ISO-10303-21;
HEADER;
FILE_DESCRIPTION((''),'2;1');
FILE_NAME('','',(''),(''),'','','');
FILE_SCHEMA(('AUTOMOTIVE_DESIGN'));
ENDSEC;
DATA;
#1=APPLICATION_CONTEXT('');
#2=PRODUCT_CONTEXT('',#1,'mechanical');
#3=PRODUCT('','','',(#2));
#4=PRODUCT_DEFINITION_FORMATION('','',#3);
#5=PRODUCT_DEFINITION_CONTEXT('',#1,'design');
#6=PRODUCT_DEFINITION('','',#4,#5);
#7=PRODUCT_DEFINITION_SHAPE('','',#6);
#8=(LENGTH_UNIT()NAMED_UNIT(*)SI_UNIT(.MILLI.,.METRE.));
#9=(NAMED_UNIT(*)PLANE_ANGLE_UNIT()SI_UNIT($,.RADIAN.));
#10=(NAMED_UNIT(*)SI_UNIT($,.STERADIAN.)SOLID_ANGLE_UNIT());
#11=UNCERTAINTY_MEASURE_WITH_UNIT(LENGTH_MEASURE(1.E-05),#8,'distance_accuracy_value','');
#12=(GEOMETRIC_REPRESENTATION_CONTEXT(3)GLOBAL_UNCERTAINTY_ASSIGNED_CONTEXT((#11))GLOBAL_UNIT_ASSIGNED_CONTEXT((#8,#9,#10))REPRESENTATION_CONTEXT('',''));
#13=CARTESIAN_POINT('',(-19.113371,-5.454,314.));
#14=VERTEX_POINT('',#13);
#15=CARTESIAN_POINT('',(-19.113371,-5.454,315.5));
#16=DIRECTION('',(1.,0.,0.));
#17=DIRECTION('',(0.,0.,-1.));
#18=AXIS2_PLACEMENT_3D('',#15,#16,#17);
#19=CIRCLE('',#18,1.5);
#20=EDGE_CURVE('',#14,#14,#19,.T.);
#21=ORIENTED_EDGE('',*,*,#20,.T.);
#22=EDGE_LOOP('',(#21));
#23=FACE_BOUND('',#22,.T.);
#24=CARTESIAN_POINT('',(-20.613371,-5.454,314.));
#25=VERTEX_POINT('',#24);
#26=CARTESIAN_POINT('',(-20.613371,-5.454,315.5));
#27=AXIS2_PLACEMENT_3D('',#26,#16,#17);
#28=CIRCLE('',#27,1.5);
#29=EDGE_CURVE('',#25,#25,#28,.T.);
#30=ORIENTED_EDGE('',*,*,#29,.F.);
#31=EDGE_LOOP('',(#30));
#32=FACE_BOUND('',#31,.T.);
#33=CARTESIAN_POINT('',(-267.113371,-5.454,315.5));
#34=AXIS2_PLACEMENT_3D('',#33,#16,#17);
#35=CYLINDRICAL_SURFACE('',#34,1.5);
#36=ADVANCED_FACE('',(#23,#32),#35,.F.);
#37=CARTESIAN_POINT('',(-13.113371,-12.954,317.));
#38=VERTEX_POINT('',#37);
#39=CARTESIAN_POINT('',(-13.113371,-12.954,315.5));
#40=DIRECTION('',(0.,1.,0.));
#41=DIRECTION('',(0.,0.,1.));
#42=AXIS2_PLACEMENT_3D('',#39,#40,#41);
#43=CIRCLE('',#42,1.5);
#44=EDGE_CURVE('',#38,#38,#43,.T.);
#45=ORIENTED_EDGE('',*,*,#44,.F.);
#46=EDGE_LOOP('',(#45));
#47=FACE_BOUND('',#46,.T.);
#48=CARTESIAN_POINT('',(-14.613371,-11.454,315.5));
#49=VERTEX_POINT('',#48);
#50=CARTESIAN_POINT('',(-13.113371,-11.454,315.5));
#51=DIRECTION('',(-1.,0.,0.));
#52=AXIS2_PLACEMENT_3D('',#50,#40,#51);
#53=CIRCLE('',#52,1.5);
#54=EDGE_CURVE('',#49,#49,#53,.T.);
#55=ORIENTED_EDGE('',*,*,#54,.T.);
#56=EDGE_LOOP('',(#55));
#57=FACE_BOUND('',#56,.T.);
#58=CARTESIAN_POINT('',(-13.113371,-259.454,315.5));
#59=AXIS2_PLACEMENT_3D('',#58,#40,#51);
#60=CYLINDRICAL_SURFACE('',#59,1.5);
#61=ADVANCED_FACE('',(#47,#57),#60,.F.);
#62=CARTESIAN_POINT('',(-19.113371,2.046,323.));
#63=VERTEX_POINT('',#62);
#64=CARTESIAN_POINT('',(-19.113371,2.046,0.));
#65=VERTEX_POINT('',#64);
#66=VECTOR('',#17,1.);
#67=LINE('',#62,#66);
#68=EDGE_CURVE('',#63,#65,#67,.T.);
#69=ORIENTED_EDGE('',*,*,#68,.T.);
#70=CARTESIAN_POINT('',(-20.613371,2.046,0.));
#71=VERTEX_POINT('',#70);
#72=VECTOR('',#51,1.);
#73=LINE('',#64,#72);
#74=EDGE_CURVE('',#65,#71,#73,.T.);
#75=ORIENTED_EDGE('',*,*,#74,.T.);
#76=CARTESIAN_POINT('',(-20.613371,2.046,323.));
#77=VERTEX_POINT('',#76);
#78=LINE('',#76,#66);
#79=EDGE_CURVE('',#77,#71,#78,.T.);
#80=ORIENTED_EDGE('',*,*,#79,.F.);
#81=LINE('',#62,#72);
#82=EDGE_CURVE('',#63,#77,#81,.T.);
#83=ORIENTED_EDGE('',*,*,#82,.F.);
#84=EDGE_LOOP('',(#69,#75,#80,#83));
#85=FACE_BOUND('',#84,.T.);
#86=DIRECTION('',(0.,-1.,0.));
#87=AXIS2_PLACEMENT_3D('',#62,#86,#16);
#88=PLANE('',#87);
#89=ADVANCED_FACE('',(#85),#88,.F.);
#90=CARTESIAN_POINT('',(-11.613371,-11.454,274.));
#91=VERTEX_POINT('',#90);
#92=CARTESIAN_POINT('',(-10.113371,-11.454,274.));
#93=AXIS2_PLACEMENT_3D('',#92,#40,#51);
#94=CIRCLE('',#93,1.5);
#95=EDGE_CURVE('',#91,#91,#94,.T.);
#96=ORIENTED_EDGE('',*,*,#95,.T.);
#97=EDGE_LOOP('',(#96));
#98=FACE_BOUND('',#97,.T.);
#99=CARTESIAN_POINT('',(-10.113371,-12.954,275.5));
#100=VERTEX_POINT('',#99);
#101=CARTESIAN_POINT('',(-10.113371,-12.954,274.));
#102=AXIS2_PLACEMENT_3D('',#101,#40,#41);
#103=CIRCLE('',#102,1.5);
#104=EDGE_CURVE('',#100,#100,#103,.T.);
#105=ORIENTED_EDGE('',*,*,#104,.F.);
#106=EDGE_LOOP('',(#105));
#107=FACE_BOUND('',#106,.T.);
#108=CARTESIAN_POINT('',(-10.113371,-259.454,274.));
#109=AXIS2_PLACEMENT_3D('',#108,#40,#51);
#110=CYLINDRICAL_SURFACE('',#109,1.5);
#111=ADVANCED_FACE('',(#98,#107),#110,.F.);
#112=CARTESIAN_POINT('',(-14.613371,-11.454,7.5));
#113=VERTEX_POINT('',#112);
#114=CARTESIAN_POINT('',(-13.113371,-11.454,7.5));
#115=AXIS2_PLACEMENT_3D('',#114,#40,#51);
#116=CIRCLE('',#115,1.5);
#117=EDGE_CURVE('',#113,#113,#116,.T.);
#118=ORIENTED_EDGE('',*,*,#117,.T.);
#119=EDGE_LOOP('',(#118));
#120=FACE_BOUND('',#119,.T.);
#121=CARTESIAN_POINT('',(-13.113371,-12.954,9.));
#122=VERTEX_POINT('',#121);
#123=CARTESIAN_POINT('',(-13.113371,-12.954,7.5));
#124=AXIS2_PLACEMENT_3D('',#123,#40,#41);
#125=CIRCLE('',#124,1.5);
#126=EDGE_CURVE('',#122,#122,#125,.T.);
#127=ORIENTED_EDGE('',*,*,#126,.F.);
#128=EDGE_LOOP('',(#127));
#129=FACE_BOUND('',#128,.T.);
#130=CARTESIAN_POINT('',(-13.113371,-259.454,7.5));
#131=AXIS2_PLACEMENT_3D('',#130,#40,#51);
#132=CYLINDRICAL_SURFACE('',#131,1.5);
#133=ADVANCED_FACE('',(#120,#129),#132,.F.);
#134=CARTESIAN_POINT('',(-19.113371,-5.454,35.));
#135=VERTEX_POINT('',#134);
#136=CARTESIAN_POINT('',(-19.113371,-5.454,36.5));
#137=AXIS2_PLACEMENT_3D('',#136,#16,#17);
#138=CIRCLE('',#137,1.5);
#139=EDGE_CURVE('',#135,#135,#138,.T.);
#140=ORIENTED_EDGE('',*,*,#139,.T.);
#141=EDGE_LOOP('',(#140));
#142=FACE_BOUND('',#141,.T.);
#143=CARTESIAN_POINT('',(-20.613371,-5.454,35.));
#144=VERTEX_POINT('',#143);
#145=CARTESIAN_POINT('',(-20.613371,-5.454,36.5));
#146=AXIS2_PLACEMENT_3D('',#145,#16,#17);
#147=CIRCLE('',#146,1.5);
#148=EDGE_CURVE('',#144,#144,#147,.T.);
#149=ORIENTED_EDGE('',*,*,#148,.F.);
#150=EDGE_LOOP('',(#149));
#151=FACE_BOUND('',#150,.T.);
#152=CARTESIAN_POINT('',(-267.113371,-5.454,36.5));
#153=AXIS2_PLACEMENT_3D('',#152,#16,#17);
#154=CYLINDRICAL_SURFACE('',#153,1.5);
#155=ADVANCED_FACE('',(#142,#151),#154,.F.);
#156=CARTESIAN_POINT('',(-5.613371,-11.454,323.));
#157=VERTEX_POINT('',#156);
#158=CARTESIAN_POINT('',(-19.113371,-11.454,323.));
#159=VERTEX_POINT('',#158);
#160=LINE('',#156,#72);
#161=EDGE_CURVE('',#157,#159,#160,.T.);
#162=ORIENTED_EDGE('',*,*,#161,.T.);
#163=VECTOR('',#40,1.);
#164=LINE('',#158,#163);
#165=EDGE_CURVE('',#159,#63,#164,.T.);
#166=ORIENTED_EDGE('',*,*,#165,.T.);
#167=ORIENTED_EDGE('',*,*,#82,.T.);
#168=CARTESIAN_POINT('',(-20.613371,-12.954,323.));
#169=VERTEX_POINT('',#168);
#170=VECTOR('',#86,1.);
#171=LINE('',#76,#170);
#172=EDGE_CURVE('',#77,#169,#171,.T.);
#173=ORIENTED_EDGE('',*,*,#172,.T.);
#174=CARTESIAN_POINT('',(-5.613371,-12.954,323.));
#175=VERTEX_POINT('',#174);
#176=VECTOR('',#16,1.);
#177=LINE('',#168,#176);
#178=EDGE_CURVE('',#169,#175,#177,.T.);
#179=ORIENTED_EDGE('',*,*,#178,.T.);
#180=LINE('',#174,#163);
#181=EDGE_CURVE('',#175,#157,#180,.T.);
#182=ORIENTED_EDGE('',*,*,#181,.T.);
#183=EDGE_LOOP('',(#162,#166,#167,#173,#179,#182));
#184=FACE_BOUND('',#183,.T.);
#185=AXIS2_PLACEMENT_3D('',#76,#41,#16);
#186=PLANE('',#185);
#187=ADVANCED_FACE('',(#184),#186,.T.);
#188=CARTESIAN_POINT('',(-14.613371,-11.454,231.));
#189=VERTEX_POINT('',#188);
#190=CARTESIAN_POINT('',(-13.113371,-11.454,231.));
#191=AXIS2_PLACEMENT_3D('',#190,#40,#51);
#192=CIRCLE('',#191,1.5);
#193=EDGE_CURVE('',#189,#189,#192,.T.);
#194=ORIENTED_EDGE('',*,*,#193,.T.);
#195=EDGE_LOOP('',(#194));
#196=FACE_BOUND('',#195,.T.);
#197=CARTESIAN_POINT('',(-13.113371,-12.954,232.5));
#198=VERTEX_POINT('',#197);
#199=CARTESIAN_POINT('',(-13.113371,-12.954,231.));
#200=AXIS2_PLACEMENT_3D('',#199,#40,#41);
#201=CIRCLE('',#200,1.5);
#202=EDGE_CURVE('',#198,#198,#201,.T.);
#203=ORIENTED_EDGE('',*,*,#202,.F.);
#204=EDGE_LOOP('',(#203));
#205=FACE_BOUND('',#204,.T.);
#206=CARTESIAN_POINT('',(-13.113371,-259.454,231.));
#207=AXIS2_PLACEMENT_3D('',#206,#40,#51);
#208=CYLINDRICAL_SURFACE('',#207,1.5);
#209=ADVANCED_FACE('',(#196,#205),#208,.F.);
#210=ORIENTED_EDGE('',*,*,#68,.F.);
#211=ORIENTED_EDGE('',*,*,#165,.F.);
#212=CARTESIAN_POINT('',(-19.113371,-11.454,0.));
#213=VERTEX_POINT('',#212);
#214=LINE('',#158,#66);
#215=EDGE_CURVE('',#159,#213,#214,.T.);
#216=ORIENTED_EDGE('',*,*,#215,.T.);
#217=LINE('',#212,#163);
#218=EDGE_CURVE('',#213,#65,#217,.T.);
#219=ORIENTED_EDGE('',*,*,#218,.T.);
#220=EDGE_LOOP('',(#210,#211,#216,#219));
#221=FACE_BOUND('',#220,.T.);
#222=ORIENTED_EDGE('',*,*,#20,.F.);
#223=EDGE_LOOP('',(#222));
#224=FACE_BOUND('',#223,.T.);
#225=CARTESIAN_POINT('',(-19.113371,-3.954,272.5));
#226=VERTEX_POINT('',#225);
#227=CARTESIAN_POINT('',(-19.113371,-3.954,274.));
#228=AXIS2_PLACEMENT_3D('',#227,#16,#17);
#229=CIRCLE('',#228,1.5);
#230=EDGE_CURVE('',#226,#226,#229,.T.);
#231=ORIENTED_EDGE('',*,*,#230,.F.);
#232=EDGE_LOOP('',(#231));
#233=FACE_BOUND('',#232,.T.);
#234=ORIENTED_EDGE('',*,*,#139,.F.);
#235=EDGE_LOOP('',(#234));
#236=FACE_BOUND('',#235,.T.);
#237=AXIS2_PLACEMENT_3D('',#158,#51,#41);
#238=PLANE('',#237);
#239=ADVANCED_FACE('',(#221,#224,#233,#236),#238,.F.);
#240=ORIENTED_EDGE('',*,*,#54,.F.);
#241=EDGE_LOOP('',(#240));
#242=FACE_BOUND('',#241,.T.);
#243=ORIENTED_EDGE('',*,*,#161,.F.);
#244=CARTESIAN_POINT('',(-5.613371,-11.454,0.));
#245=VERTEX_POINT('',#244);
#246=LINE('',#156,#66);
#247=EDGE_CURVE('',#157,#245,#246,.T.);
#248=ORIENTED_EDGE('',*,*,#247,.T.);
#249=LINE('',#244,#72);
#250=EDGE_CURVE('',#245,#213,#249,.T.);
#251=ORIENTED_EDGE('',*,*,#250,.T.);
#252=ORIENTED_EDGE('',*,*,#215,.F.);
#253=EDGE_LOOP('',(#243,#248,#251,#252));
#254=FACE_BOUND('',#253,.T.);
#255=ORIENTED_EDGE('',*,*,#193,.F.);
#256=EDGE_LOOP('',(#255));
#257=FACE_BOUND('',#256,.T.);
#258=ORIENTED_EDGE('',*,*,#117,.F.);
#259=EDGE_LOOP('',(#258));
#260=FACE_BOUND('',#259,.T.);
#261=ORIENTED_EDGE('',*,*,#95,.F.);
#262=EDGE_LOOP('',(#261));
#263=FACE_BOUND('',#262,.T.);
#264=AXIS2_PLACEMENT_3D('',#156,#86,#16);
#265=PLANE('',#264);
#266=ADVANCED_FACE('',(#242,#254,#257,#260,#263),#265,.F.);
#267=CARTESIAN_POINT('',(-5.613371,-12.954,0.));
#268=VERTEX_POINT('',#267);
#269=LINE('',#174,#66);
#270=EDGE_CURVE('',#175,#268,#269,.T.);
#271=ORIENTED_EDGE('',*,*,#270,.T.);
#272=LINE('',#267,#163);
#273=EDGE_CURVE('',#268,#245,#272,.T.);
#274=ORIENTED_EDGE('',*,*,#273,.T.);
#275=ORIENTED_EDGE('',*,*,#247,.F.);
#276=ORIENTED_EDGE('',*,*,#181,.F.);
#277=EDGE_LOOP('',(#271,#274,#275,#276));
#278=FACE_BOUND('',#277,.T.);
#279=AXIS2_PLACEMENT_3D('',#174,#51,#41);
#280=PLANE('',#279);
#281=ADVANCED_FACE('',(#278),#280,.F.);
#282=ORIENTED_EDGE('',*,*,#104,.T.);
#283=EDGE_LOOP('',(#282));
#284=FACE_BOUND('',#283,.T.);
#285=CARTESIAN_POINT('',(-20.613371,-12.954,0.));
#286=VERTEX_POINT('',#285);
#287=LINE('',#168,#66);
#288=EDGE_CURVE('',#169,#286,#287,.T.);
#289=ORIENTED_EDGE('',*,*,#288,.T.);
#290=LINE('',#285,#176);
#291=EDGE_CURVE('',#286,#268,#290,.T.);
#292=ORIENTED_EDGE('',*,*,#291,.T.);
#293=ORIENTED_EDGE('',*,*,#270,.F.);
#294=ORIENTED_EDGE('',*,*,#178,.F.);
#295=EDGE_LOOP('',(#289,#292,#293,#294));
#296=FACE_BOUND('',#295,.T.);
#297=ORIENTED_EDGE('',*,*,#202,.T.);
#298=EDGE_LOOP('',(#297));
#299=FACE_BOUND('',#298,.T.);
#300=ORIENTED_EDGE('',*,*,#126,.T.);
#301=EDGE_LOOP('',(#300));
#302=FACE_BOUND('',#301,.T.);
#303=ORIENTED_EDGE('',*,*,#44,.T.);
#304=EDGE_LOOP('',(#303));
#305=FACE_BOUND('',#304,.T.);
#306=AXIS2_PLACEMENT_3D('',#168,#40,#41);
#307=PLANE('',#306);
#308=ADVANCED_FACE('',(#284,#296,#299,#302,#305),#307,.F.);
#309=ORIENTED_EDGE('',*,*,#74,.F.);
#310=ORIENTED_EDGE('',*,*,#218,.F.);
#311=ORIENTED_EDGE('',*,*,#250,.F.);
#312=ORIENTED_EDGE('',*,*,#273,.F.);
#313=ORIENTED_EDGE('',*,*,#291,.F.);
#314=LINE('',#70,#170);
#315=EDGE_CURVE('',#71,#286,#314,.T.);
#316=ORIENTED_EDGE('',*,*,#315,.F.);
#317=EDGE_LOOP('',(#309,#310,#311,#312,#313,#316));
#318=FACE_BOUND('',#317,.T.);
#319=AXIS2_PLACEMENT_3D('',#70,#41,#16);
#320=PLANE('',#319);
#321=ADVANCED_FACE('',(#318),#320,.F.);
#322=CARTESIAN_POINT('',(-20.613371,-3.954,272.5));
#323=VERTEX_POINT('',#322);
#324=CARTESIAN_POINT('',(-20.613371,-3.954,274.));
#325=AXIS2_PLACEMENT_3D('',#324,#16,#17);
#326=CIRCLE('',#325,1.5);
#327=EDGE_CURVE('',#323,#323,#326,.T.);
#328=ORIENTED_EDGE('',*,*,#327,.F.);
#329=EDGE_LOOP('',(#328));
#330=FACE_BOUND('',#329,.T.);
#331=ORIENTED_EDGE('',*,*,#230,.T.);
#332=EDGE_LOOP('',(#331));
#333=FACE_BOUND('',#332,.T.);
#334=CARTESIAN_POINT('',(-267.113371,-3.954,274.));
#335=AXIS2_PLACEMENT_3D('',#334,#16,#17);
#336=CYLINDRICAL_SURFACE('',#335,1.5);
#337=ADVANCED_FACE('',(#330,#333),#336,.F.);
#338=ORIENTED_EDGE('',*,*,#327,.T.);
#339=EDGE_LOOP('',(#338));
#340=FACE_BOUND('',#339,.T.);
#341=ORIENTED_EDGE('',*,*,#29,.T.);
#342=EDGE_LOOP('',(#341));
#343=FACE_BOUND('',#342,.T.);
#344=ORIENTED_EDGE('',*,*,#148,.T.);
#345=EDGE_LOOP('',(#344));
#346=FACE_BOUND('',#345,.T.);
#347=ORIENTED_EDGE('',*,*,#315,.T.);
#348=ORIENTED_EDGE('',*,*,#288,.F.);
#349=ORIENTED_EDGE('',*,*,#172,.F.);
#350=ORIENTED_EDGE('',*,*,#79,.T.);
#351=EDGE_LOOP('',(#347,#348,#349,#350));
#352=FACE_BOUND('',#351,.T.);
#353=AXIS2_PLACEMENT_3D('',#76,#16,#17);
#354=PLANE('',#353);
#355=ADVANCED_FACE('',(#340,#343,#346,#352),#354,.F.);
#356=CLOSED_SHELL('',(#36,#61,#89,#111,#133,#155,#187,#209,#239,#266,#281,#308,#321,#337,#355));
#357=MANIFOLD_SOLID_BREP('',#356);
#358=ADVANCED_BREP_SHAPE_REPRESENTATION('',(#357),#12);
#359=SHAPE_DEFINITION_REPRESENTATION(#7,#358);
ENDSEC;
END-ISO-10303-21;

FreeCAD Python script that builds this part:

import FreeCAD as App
import Part
import Sketcher
from FreeCAD import Vector


def add_polygon(sketch, points):
    """Adds a closed chain of lines whose ends are joined by coincident constraints."""
    first, n = sketch.GeometryCount, len(points)
    for a, b in zip(points, points[1:] + points[:1]):
        sketch.addGeometry(Part.LineSegment(App.Vector(*a, 0), App.Vector(*b, 0)), False)
    for i in range(n):
        sketch.addConstraint(Sketcher.Constraint("Coincident", first + i, 2, first + (i + 1) % n, 1))

doc = App.newDocument("Part")
params = doc.addObject("Spreadsheet::Sheet", "Params")
for row, (alias, value) in enumerate([
    ("sketch1_width", "15 mm"),
    ("sketch1_width2", "13.5 mm"),
    ("pad1_length", "323 mm"),
    ("sketch2_diameter", "3 mm"),
    ("pocket1_length", "248 mm"),
    ("sketch3_diameter", "3 mm"),
    ("pocket2_length", "248 mm"),
], start=1):
    params.set(f"A{row}", alias)
    params.set(f"B{row}", "=" + value)
    params.setAlias(f"B{row}", alias)

body = doc.addObject("PartDesign::Body", "Body")

# Sketch on XY plane
sketch1 = body.newObject("Sketcher::SketchObject", "Sketch")
sketch1.AttachmentSupport = (doc.getObject("XY_Plane"), [""])
sketch1.MapMode = "FlatFace"
add_polygon(sketch1, [(-20.6, 2), (-20.6, -13), (-5.6, -13), (-5.6, -11.5), (-19.1, -11.5), (-19.1, 2)])  # lines 0-5
sketch1.addConstraint([
    Sketcher.Constraint("Vertical", 0),
    Sketcher.Constraint("Horizontal", 1),
    Sketcher.Constraint("Vertical", 2),
    Sketcher.Constraint("Horizontal", 3),
    Sketcher.Constraint("Vertical", 4),
    Sketcher.Constraint("Horizontal", 5),
    Sketcher.Constraint("Equal", 1, 0),
    Sketcher.Constraint("Equal", 5, 2),
    Sketcher.Constraint("DistanceX", 1, 1, 1, 2, 15.0),
    Sketcher.Constraint("DistanceX", 3, 2, 3, 1, 13.5),
    Sketcher.Constraint("DistanceY", 0, 2, -1, 1, 12.954),
    Sketcher.Constraint("DistanceX", 0, 2, -1, 1, 20.613371),
])
sketch1.setExpression("Constraints[14]", "Params.sketch1_width")
sketch1.setExpression("Constraints[15]", "Params.sketch1_width2")
pad1 = body.newObject("PartDesign::Pad", "Pad")
pad1.Profile = sketch1
pad1.setExpression("Length", "Params.pad1_length")

# Sketch on XZ plane
sketch2 = body.newObject("Sketcher::SketchObject", "Sketch001")
sketch2.AttachmentSupport = (doc.getObject("XZ_Plane"), [""])
sketch2.MapMode = "FlatFace"
sketch2.AttachmentOffset = App.Placement(Vector(0, 0, 11.454), App.Rotation())
sketch2.addGeometry([
    Part.Circle(Vector(-13.1, 7.5, 0), Vector(0, 0, 1), 1.5),
    Part.Circle(Vector(-10.1, 274, 0), Vector(0, 0, 1), 1.5),
    Part.Circle(Vector(-13.1, 315.5, 0), Vector(0, 0, 1), 1.5),
    Part.Circle(Vector(-13.1, 231, 0), Vector(0, 0, 1), 1.5),
], False)
sketch2.addConstraint([
    Sketcher.Constraint("Equal", 0, 1),
    Sketcher.Constraint("Equal", 1, 2),
    Sketcher.Constraint("Equal", 2, 3),
    Sketcher.Constraint("Vertical", 0, 3, 2, 3),
    Sketcher.Constraint("Vertical", 2, 3, 3, 3),
    Sketcher.Constraint("Diameter", 0, 3.0),
    Sketcher.Constraint("DistanceY", -1, 1, 1, 3, 274.0),
    Sketcher.Constraint("DistanceY", -1, 1, 3, 3, 231.0),
    Sketcher.Constraint("DistanceX", 0, 3, 1, 3, 3.0),
    Sketcher.Constraint("DistanceY", 0, 3, 2, 3, 308.0),
    Sketcher.Constraint("DistanceY", -1, 1, 0, 3, 7.5),
    Sketcher.Constraint("DistanceX", 0, 3, -1, 1, 13.113371),
])
sketch2.setExpression("Constraints[5]", "Params.sketch2_diameter")
pocket1 = body.newObject("PartDesign::Pocket", "Pocket")
pocket1.Profile = sketch2
pocket1.setExpression("Length", "Params.pocket1_length")
pocket1.Reversed = True

# Sketch on YZ plane
sketch3 = body.newObject("Sketcher::SketchObject", "Sketch002")
sketch3.AttachmentSupport = (doc.getObject("YZ_Plane"), [""])
sketch3.MapMode = "FlatFace"
sketch3.AttachmentOffset = App.Placement(Vector(0, 0, -19.113371), App.Rotation())
sketch3.addGeometry([
    Part.Circle(Vector(-5.5, 36.5, 0), Vector(0, 0, 1), 1.5),
    Part.Circle(Vector(-4, 274, 0), Vector(0, 0, 1), 1.5),
    Part.Circle(Vector(-5.5, 315.5, 0), Vector(0, 0, 1), 1.5),
], False)
sketch3.addConstraint([
    Sketcher.Constraint("Equal", 0, 1),
    Sketcher.Constraint("Equal", 1, 2),
    Sketcher.Constraint("Vertical", 0, 3, 2, 3),
    Sketcher.Constraint("Diameter", 0, 3.0),
    Sketcher.Constraint("DistanceY", -1, 1, 1, 3, 274.0),
    Sketcher.Constraint("DistanceY", 0, 3, 2, 3, 279.0),
    Sketcher.Constraint("DistanceY", -1, 1, 0, 3, 36.5),
    Sketcher.Constraint("DistanceX", 0, 3, 1, 3, 1.5),
    Sketcher.Constraint("DistanceX", 0, 3, -1, 1, 5.454),
])
sketch3.setExpression("Constraints[3]", "Params.sketch3_diameter")
pocket2 = body.newObject("PartDesign::Pocket", "Pocket001")
pocket2.Profile = sketch3
pocket2.setExpression("Length", "Params.pocket2_length")

doc.recompute()
